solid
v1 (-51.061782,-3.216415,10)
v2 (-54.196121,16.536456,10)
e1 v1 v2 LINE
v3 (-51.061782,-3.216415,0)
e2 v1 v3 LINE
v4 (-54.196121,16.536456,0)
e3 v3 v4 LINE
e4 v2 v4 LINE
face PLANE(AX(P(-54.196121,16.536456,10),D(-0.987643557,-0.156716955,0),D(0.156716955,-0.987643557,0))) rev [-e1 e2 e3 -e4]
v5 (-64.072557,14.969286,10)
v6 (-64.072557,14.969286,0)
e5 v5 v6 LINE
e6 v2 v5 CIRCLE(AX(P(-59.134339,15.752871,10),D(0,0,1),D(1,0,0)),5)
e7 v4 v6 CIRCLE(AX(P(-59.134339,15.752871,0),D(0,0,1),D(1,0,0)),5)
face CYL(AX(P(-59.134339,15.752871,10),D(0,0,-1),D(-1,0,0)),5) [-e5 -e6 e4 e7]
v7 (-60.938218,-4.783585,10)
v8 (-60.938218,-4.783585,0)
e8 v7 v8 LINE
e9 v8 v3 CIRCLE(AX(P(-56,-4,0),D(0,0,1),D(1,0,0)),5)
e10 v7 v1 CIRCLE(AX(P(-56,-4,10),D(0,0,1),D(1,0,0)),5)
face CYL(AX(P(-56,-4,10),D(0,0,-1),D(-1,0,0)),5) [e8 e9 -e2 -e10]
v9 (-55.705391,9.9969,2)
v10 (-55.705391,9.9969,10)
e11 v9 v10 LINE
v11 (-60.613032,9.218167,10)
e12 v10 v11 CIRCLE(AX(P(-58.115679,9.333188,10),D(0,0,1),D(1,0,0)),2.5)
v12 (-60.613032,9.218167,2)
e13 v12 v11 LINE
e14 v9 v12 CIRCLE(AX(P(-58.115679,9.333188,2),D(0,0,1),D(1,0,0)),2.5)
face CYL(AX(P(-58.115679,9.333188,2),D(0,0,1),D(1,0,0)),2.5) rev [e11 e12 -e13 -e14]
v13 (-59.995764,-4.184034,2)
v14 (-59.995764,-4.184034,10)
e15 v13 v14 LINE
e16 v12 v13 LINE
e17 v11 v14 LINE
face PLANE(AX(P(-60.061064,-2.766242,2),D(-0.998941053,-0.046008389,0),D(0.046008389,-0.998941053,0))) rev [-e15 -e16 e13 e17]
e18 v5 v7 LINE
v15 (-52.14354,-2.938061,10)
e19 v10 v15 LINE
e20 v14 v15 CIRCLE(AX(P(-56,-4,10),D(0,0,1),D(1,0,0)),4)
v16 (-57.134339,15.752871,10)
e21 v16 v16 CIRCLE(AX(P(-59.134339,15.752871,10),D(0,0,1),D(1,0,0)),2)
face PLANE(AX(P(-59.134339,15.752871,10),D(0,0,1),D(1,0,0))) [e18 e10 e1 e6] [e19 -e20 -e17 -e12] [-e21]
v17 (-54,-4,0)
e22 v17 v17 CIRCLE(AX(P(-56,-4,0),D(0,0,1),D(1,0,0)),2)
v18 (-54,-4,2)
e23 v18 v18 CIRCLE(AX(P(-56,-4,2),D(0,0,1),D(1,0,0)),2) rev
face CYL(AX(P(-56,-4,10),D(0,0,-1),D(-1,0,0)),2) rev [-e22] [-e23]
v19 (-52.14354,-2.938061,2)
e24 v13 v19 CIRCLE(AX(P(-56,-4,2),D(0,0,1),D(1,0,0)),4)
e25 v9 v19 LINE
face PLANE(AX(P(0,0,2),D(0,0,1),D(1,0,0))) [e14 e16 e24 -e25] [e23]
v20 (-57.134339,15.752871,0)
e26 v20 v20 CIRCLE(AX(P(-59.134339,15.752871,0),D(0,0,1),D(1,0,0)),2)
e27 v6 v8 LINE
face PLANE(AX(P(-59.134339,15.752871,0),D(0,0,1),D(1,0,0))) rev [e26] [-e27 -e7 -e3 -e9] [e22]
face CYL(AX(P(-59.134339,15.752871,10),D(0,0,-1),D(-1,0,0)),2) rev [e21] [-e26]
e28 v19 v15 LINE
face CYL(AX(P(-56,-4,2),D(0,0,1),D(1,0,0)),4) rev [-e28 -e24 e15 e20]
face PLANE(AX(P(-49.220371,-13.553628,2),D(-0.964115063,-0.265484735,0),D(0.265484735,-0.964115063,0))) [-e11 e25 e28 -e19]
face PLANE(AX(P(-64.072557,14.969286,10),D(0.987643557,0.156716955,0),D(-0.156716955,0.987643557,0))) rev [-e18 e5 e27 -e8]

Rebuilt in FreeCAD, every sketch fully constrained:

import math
import FreeCAD as App
import Part
import Sketcher

V = App.Vector

doc = App.newDocument("Part")
body = doc.addObject("PartDesign::Body", "Body")

sketch1 = body.newObject("Sketcher::SketchObject", "Sketch")
sketch1.AttachmentSupport = (doc.getObject("XY_Plane"), [""])
sketch1.MapMode = "FlatFace"
sketch1.addGeometry([
    Part.LineSegment(V(-64.1, 15, 0), V(-60.9, -4.8, 0)),
    Part.ArcOfCircle(Part.Circle(V(-56, -4, 0), V(0, 0, 1), 5), math.radians(-171), math.radians(9)),
    Part.LineSegment(V(-51.1, -3.2, 0), V(-54.2, 16.5, 0)),
    Part.ArcOfCircle(Part.Circle(V(-59.1, 15.8, 0), V(0, 0, 1), 5), math.radians(9), math.radians(189)),
    Part.Circle(V(-56, -4, 0), V(0, 0, 1), 2),
    Part.Circle(V(-59.1, 15.8, 0), V(0, 0, 1), 2),
], False)
sketch1.addConstraint([
    Sketcher.Constraint("Tangent", 0, 2, 1, 1),
    Sketcher.Constraint("Tangent", 1, 2, 2, 1),
    Sketcher.Constraint("Tangent", 2, 2, 3, 1),
    Sketcher.Constraint("Tangent", 3, 2, 0, 1),
    Sketcher.Constraint("Coincident", 4, 3, 1, 3),
    Sketcher.Constraint("Coincident", 5, 3, 3, 3),
    Sketcher.Constraint("Equal", 1, 3),
    Sketcher.Constraint("Equal", 4, 5),
    Sketcher.Constraint("Diameter", 4, 4.0),
    Sketcher.Constraint("Radius", 1, 5.0),
    Sketcher.Constraint("Distance", 0, 20.0),
    Sketcher.Constraint("DistanceX", 1, 3, -1, 1, 56.0),
    Sketcher.Constraint("DistanceY", 1, 3, -1, 1, 4.0),
    Sketcher.Constraint("DistanceX", 3, 3, -1, 1, 59.134339),
])
pad1 = body.newObject("PartDesign::Pad", "Pad")
pad1.Profile = sketch1
pad1.Length = 10

sketch2 = body.newObject("Sketcher::SketchObject", "Sketch001")
sketch2.AttachmentSupport = (doc.getObject("XY_Plane"), [""])
sketch2.MapMode = "FlatFace"
sketch2.AttachmentOffset = App.Placement(V(0, 0, 2), App.Rotation())
sketch2.addGeometry([
    Part.ArcOfCircle(Part.Circle(V(-58.1, 9.3, 0), V(0, 0, 1), 2.5), math.radians(99), math.radians(183)),
    Part.LineSegment(V(-60.6, 9.2, 0), V(-60, -4.2, 0)),
    Part.ArcOfCircle(Part.Circle(V(-56, -4, 0), V(0, 0, 1), 4), math.radians(-177), math.radians(-81)),
    Part.ArcOfCircle(Part.Circle(V(-56, -4, 0), V(0, 0, 1), 4), math.radians(-81), math.radians(15)),
    Part.LineSegment(V(-52.1, -2.9, 0), V(-55.7, 10, 0)),
    Part.ArcOfCircle(Part.Circle(V(-58.1, 9.3, 0), V(0, 0, 1), 2.5), math.radians(15), math.radians(99)),
    Part.ArcOfCircle(Part.Circle(V(-56, -4, 0), V(0, 0, 1), 2), math.radians(99), math.radians(279)),
    Part.ArcOfCircle(Part.Circle(V(-56, -4, 0), V(0, 0, 1), 2), math.radians(0), math.radians(99)),
    Part.ArcOfCircle(Part.Circle(V(-56, -4, 0), V(0, 0, 1), 2), math.radians(-81), math.radians(0)),
], False)
sketch2.addConstraint([
    Sketcher.Constraint("Tangent", 0, 2, 1, 1),
    Sketcher.Constraint("Tangent", 1, 2, 2, 1),
    Sketcher.Constraint("Tangent", 2, 2, 3, 1),
    Sketcher.Constraint("Tangent", 3, 2, 4, 1),
    Sketcher.Constraint("Tangent", 4, 2, 5, 1),
    Sketcher.Constraint("Tangent", 5, 2, 0, 1),
    Sketcher.Constraint("Tangent", 6, 1, 7, 2),
    Sketcher.Constraint("Tangent", 7, 1, 8, 2),
    Sketcher.Constraint("Tangent", 8, 1, 6, 2),
    Sketcher.Constraint("Coincident", 6, 3, 2, 3),
    Sketcher.Constraint("Equal", 2, 3),
    Sketcher.Constraint("Equal", 0, 5),
    Sketcher.Constraint("Horizontal", 8, 3, 7, 1),
    Sketcher.Constraint("Radius", 2, 4.0),
    Sketcher.Constraint("Radius", 6, 2.0),
    Sketcher.Constraint("Radius", 0, 2.5),
    Sketcher.Constraint("DistanceX", 2, 3, -1, 1, 56.0),
    Sketcher.Constraint("DistanceY", 2, 3, -1, 1, 4.0),
    Sketcher.Constraint("DistanceY", -1, 1, 4, 2, 9.9969),
    Sketcher.Constraint("DistanceX", 0, 3, -1, 1, 58.115679),
    Sketcher.Constraint("DistanceX", 5, 2, -1, 1, 58.507471),
    Sketcher.Constraint("DistanceX", 2, 2, -1, 1, 55.373132),
    Sketcher.Constraint("DistanceX", 6, 1, -1, 1, 56.313434),
    Sketcher.Constraint("DistanceX", 8, 1, -1, 1, 55.686566),
])
pocket1 = body.newObject("PartDesign::Pocket", "Pocket")
pocket1.Profile = sketch2
pocket1.Length = 8
pocket1.Reversed = True

doc.recompute()
